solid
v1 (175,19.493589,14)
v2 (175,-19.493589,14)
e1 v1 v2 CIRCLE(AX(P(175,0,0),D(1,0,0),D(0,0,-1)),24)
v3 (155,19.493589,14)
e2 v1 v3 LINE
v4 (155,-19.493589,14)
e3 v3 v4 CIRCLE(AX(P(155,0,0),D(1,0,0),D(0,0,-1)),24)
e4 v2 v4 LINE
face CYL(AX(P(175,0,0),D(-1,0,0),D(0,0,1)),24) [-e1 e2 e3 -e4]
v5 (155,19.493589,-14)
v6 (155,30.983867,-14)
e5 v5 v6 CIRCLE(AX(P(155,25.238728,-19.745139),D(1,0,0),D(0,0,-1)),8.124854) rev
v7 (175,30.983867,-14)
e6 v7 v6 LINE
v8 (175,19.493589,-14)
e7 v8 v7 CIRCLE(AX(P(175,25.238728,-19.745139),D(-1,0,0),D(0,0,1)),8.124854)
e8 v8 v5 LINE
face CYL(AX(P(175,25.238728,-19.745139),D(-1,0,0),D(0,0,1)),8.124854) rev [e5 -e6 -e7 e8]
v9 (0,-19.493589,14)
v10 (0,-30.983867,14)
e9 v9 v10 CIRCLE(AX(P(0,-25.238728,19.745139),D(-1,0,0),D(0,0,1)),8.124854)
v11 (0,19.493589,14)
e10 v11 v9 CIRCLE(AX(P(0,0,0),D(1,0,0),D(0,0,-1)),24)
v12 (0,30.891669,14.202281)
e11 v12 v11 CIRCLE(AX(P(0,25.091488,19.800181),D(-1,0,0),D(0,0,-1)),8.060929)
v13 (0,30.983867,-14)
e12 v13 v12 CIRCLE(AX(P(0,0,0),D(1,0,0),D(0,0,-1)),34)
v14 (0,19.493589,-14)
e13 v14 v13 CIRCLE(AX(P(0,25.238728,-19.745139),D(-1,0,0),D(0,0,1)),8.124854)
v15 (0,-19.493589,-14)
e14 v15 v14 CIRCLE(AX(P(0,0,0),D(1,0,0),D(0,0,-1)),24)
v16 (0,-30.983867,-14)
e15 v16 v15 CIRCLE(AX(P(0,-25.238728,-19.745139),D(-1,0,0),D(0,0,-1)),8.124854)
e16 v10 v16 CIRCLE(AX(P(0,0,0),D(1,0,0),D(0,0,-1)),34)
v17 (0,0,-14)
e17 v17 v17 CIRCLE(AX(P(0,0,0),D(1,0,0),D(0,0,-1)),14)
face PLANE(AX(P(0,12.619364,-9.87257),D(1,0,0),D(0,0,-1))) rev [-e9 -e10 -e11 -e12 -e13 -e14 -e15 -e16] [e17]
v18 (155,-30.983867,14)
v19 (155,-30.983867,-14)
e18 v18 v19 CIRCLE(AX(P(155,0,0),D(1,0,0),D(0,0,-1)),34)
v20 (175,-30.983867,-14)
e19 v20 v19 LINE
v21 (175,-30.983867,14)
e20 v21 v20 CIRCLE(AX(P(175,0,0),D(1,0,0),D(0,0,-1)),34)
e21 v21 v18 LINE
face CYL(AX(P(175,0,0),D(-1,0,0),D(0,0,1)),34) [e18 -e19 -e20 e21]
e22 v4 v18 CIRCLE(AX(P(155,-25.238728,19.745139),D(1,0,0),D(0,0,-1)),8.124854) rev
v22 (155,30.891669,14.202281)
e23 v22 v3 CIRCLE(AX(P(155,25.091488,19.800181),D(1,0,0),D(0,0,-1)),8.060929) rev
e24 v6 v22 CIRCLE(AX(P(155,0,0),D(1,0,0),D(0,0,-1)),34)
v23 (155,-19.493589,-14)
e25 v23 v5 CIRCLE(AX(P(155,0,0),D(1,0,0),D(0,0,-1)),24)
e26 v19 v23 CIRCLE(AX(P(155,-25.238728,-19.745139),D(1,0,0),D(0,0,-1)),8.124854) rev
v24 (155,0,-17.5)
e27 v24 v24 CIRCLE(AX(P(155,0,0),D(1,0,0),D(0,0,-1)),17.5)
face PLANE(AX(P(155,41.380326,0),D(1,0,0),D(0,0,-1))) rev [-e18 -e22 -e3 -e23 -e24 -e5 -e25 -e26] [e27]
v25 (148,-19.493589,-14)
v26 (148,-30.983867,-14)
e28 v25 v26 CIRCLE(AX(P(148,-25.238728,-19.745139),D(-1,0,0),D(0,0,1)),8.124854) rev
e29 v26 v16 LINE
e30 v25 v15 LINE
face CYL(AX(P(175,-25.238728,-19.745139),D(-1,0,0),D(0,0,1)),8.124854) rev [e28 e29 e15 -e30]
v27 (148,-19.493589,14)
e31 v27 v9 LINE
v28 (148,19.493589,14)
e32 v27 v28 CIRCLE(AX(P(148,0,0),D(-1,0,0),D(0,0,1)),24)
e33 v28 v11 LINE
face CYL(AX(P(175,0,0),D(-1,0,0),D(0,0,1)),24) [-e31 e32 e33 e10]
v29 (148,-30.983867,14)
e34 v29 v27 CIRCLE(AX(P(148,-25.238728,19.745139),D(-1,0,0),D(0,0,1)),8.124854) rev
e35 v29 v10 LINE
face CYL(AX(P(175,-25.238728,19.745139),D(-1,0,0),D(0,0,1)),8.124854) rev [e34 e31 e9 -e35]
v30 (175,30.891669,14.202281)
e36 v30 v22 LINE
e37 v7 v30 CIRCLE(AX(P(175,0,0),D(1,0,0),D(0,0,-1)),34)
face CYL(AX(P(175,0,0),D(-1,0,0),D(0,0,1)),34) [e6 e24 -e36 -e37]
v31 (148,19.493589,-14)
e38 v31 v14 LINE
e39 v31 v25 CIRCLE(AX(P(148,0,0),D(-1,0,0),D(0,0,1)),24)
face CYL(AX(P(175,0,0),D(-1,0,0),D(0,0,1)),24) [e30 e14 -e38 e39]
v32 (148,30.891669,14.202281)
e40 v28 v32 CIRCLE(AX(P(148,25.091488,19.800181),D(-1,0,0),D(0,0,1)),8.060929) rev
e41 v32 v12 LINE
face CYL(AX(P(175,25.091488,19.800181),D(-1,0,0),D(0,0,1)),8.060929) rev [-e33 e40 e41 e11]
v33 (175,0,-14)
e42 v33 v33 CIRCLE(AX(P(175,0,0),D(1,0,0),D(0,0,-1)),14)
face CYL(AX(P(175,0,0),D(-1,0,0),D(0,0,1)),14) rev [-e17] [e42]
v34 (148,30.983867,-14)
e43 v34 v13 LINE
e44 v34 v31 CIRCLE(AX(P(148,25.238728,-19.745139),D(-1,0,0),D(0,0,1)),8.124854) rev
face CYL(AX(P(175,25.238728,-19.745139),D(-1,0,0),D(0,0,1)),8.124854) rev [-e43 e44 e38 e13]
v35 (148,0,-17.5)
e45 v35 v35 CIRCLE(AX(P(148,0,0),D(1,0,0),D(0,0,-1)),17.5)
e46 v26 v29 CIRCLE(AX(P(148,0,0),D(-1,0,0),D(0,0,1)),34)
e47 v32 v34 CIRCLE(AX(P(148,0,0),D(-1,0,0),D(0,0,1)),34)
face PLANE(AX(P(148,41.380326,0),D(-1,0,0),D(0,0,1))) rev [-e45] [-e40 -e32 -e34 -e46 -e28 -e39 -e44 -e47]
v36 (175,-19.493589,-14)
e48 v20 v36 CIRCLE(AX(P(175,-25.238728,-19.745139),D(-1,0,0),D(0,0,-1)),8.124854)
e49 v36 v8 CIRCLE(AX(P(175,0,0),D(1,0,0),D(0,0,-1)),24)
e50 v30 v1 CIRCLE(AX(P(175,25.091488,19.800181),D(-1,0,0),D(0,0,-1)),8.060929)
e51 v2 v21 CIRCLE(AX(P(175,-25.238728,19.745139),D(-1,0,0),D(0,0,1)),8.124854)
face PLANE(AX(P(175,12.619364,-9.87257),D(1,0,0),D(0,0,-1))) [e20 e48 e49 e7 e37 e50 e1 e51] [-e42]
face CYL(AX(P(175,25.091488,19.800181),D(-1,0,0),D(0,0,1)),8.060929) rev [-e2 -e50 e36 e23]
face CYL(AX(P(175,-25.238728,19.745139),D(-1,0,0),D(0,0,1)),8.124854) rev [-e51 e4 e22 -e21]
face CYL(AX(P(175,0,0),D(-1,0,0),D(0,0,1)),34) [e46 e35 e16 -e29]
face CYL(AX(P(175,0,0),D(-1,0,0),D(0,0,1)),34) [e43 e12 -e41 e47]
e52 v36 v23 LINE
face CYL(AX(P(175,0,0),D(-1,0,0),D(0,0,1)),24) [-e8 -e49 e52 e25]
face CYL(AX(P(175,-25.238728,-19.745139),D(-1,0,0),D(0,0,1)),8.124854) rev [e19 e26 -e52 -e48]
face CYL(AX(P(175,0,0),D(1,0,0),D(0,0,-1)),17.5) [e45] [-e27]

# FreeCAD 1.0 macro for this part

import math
import FreeCAD as App
import Part
import Sketcher

V = App.Vector
Q = App.Units.Quantity

doc = App.newDocument("Part")
body = doc.addObject("PartDesign::Body", "Body")

# Sketch on YZ plane
sketch1 = body.newObject("Sketcher::SketchObject", "Sketch")
sketch1.AttachmentSupport = (doc.getObject("YZ_Plane"), [""])
sketch1.MapMode = "FlatFace"
sketch1.addGeometry(Part.ArcOfCircle(Part.Circle(V(0, 0, 0), V(0, 0, 1), 24), math.radians(36), math.radians(144)), False)
sketch1.addGeometry(Part.ArcOfCircle(Part.Circle(V(-25, 20, 0), V(0, 0, 1), 8), math.radians(-135), math.radians(-45)), False)
sketch1.addGeometry(Part.ArcOfCircle(Part.Circle(V(0, 0, 0), V(0, 0, 1), 34), math.radians(156), math.radians(204)), False)
sketch1.addGeometry(Part.ArcOfCircle(Part.Circle(V(-25, -20, 0), V(0, 0, 1), 8), math.radians(45), math.radians(135)), False)
sketch1.addGeometry(Part.ArcOfCircle(Part.Circle(V(0, 0, 0), V(0, 0, 1), 24), math.radians(-144), math.radians(-36)), False)
sketch1.addGeometry(Part.ArcOfCircle(Part.Circle(V(25, -20, 0), V(0, 0, 1), 8), math.radians(45), math.radians(135)), False)
sketch1.addGeometry(Part.ArcOfCircle(Part.Circle(V(0, 0, 0), V(0, 0, 1), 34), math.radians(-24), math.radians(25)), False)
sketch1.addGeometry(Part.ArcOfCircle(Part.Circle(V(25, 20, 0), V(0, 0, 1), 8), math.radians(-134), math.radians(-44)), False)
sketch1.addGeometry(Part.Circle(V(0, 0, 0), V(0, 0, 1), 14), False)
sketch1.addConstraint(Sketcher.Constraint("Coincident", 0, 2, 1, 2))
sketch1.addConstraint(Sketcher.Constraint("Coincident", 1, 1, 2, 1))
sketch1.addConstraint(Sketcher.Constraint("Coincident", 2, 2, 3, 2))
sketch1.addConstraint(Sketcher.Constraint("Coincident", 3, 1, 4, 1))
sketch1.addConstraint(Sketcher.Constraint("Coincident", 4, 2, 5, 2))
sketch1.addConstraint(Sketcher.Constraint("Coincident", 5, 1, 6, 1))
sketch1.addConstraint(Sketcher.Constraint("Coincident", 6, 2, 7, 2))
sketch1.addConstraint(Sketcher.Constraint("Coincident", 7, 1, 0, 1))
sketch1.addConstraint(Sketcher.Constraint("Coincident", 0, 3, -1, 1))
sketch1.addConstraint(Sketcher.Constraint("Coincident", 2, 3, -1, 1))
sketch1.addConstraint(Sketcher.Constraint("Coincident", 4, 3, -1, 1))
sketch1.addConstraint(Sketcher.Constraint("Coincident", 6, 3, -1, 1))
sketch1.addConstraint(Sketcher.Constraint("Coincident", 8, 3, -1, 1))
sketch1.addConstraint(Sketcher.Constraint("Equal", 1, 3))
sketch1.addConstraint(Sketcher.Constraint("Equal", 0, 4))
sketch1.addConstraint(Sketcher.Constraint("Equal", 3, 5))
sketch1.addConstraint(Sketcher.Constraint("Equal", 2, 6))
sketch1.addConstraint(Sketcher.Constraint("Symmetric", 1, 3, 5, 3, -1, 1))
sketch1.addConstraint(Sketcher.Constraint("Symmetric", 3, 3, 5, 3, -2))
sketch1.addConstraint(Sketcher.Constraint("Horizontal", 0, 2, 1, 1))
sketch1.addConstraint(Sketcher.Constraint("Horizontal", 1, 1, 7, 1))
sketch1.addConstraint(Sketcher.Constraint("Diameter", 8, Q("28 mm")))
sketch1.addConstraint(Sketcher.Constraint("Radius", 0, Q("24 mm")))
sketch1.addConstraint(Sketcher.Constraint("Radius", 2, Q("34 mm")))
sketch1.addConstraint(Sketcher.Constraint("DistanceY", -1, 1, 0, 2, Q("14 mm")))
sketch1.addConstraint(Sketcher.Constraint("Radius", 7, Q("8.060929 mm")))
sketch1.addConstraint(Sketcher.Constraint("Radius", 1, Q("8.124854 mm")))
sketch1.addConstraint(Sketcher.Constraint("DistanceY", 6, 2, 7, 3, Q("5.5979 mm")))
pad1 = body.newObject("PartDesign::Pad", "Pad")
pad1.Profile = sketch1
pad1.Length = 175

# Sketch on XY plane
sketch2 = body.newObject("Sketcher::SketchObject", "Sketch001")
sketch2.AttachmentSupport = (doc.getObject("XY_Plane"), [""])
sketch2.MapMode = "FlatFace"
sketch2.addGeometry(Part.LineSegment(V(148, 41, 0), V(148, 18, 0)), False)
sketch2.addGeometry(Part.LineSegment(V(148, 18, 0), V(155, 18, 0)), False)
sketch2.addGeometry(Part.LineSegment(V(155, 18, 0), V(155, 41, 0)), False)
sketch2.addGeometry(Part.LineSegment(V(155, 41, 0), V(148, 41, 0)), False)
sketch2.addConstraint(Sketcher.Constraint("Coincident", 0, 2, 1, 1))
sketch2.addConstraint(Sketcher.Constraint("Coincident", 1, 2, 2, 1))
sketch2.addConstraint(Sketcher.Constraint("Coincident", 2, 2, 3, 1))
sketch2.addConstraint(Sketcher.Constraint("Coincident", 3, 2, 0, 1))
sketch2.addConstraint(Sketcher.Constraint("Vertical", 0))
sketch2.addConstraint(Sketcher.Constraint("Horizontal", 1))
sketch2.addConstraint(Sketcher.Constraint("Vertical", 2))
sketch2.addConstraint(Sketcher.Constraint("Horizontal", 3))
sketch2.addConstraint(Sketcher.Constraint("DistanceX", 1, 1, 1, 2, Q("7 mm")))
sketch2.addConstraint(Sketcher.Constraint("DistanceX", -1, 1, 0, 2, Q("148 mm")))
sketch2.addConstraint(Sketcher.Constraint("DistanceY", -1, 1, 0, 2, Q("17.5 mm")))
sketch2.addConstraint(Sketcher.Constraint("DistanceY", 0, 2, 0, 1, Q("23.880326 mm")))
groove = body.newObject("PartDesign::Groove", "Groove")
groove.Profile = sketch2
groove.ReferenceAxis = (sketch2, ["H_Axis"])
groove.Angle = 360

doc.recompute()
